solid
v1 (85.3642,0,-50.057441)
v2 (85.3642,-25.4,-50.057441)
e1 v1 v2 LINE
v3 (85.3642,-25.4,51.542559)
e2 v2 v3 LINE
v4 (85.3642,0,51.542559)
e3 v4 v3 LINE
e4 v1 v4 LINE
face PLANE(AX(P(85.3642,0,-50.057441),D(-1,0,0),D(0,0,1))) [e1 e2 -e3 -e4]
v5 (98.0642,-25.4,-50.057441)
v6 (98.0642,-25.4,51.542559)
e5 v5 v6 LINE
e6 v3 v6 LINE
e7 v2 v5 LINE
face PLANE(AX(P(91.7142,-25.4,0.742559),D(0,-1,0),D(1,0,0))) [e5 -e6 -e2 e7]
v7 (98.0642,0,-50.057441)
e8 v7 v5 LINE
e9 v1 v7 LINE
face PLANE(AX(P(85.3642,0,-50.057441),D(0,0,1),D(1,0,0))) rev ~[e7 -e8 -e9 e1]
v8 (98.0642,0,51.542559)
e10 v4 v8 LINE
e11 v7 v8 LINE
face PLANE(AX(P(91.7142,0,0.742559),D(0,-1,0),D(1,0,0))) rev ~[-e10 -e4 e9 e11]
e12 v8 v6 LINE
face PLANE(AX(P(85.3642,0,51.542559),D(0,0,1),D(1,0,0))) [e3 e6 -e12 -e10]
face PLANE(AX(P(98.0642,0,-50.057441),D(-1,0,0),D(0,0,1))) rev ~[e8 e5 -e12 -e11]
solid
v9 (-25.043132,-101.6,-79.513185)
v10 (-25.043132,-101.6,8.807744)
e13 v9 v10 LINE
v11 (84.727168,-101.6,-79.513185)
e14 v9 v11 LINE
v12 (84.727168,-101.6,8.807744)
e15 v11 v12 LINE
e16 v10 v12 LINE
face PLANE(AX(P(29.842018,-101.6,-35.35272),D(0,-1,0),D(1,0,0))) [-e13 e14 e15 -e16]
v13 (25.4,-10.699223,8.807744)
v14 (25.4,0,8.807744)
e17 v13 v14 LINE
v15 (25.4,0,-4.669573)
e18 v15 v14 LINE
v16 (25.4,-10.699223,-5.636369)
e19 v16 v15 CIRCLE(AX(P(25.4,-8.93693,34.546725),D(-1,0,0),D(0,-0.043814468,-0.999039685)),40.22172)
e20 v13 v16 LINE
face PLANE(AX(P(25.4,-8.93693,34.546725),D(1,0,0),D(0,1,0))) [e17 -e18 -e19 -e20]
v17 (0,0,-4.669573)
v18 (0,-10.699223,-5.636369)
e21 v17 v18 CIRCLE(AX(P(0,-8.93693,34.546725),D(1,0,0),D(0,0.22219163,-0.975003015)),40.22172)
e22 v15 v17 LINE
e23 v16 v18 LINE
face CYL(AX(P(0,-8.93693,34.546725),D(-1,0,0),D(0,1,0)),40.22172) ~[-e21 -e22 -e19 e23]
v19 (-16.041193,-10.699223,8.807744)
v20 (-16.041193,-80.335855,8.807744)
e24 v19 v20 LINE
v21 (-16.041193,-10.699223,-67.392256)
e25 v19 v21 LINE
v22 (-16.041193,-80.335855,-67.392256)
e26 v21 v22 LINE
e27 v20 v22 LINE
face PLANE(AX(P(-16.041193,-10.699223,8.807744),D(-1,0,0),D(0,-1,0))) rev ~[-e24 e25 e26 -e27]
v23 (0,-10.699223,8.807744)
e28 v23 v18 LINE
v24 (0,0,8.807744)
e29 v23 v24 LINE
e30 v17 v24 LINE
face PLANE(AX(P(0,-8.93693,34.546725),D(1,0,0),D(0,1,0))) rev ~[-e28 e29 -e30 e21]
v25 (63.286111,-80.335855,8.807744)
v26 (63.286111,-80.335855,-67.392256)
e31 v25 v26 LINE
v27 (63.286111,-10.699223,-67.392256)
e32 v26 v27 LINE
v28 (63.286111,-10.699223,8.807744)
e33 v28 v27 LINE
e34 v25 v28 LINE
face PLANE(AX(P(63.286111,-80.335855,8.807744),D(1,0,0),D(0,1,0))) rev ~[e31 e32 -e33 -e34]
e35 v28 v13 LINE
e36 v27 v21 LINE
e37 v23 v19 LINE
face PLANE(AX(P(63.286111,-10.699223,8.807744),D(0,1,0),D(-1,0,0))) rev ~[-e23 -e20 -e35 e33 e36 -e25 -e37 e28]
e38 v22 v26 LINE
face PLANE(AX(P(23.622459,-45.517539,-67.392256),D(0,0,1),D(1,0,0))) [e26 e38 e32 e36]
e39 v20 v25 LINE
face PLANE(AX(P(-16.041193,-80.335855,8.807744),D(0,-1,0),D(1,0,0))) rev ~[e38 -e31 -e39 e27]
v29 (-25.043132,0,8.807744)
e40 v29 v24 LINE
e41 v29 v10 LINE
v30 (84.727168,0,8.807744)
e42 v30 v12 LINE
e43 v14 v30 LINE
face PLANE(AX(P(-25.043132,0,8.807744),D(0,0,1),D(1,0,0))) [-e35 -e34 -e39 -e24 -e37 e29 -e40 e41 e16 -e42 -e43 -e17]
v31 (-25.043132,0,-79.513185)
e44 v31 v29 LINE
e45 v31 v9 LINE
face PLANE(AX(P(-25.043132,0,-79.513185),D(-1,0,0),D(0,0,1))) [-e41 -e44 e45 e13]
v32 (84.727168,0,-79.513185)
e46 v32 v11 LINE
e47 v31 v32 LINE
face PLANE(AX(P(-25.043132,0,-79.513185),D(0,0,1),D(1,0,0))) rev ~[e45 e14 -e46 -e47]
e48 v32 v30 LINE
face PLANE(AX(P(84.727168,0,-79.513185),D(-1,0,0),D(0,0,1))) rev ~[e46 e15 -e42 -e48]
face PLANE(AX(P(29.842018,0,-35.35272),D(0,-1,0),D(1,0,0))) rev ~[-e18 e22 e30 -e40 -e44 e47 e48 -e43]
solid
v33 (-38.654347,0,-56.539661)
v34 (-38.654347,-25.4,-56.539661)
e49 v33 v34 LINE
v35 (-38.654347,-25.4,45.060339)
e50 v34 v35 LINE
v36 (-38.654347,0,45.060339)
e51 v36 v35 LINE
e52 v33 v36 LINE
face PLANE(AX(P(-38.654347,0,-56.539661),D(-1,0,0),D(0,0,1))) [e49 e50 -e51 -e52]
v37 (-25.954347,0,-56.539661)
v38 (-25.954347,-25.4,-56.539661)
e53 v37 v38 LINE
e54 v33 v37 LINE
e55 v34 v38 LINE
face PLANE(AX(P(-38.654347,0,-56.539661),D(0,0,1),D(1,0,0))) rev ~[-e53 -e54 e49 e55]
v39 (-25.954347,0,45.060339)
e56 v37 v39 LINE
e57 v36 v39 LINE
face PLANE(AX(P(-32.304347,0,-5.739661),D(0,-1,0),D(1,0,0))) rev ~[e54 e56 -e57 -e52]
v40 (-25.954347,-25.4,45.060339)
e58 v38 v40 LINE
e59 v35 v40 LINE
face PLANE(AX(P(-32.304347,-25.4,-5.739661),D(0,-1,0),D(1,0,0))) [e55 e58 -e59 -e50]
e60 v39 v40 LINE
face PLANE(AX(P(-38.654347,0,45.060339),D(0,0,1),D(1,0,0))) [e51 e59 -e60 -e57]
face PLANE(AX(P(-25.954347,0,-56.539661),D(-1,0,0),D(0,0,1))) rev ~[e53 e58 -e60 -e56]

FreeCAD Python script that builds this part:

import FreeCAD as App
import Part
import Sketcher

V = App.Vector
Q = App.Units.Quantity


def add_polygon(sketch, points):
    """Adds a closed chain of lines whose ends are joined by coincident constraints."""
    first, n = sketch.GeometryCount, len(points)
    for a, b in zip(points, points[1:] + points[:1]):
        sketch.addGeometry(Part.LineSegment(App.Vector(*a, 0), App.Vector(*b, 0)), False)
    for i in range(n):
        sketch.addConstraint(Sketcher.Constraint("Coincident", first + i, 2, first + (i + 1) % n, 1))

doc = App.newDocument("Part")
params = doc.addObject("Spreadsheet::Sheet", "Params")
for row, (alias, value) in enumerate([
    ("pad1_length", "4 in"),
    ("pocket1_length", "3 in"),
    ("pad2_length", "1 in"),
    ("sketch4_height", "4 in"),
    ("sketch4_width", "0.5 in"),
    ("pad3_length", "1 in"),
    ("sketch5_height", "4 in"),
    ("sketch5_width", "0.5 in"),
    ("pad4_length", "1 in"),
], start=1):
    params.set(f"A{row}", alias)
    params.set(f"B{row}", "=" + value)
    params.setAlias(f"B{row}", alias)

body = doc.addObject("PartDesign::Body", "Body")

# Sketch on XZ plane
sketch1 = body.newObject("Sketcher::SketchObject", "Sketch")
sketch1.AttachmentSupport = (doc.getObject("XZ_Plane"), [""])
sketch1.MapMode = "FlatFace"
add_polygon(sketch1, [(-25.043132, 8.807744), (-25.043132, -79.513185), (84.727168, -79.513185), (84.727168, 8.807744)])  # lines 0-3
sketch1.addConstraint([
    Sketcher.Constraint("Vertical", 0),
    Sketcher.Constraint("Horizontal", 1),
    Sketcher.Constraint("Vertical", 2),
    Sketcher.Constraint("Horizontal", 3),
    Sketcher.Constraint("DistanceX", 1, 1, 1, 2, 109.7703),
    Sketcher.Constraint("DistanceY", 0, 2, 0, 1, 88.320929),
    Sketcher.Constraint("DistanceX", 0, 2, -1, 1, 25.043132),
    Sketcher.Constraint("DistanceY", 0, 2, -1, 1, 79.513185),
])
pad1 = body.newObject("PartDesign::Pad", "Pad")
pad1.Profile = sketch1
pad1.setExpression("Length", "Params.pad1_length")

# Sketch on XY plane
sketch2 = body.newObject("Sketcher::SketchObject", "Sketch001")
sketch2.AttachmentSupport = (doc.getObject("XY_Plane"), [""])
sketch2.MapMode = "FlatFace"
sketch2.AttachmentOffset = App.Placement(V(0, 0, 8.807744), App.Rotation())
add_polygon(sketch2, [(63.286111, -10.699223), (-16.041193, -10.699223), (-16.041193, -80.335855), (63.286111, -80.335855)])  # lines 0-3
sketch2.addConstraint([
    Sketcher.Constraint("Horizontal", 0),
    Sketcher.Constraint("Vertical", 1),
    Sketcher.Constraint("Horizontal", 2),
    Sketcher.Constraint("Vertical", 3),
    Sketcher.Constraint("DistanceX", 0, 2, 0, 1, 79.327304),
    Sketcher.Constraint("DistanceY", 1, 2, 1, 1, 69.636633),
    Sketcher.Constraint("DistanceX", -1, 1, 2, 2, 63.286111),
    Sketcher.Constraint("DistanceY", 0, 2, -1, 1, 10.699223),
])
pocket1 = body.newObject("PartDesign::Pocket", "Pocket")
pocket1.Profile = sketch2
pocket1.setExpression("Length", "Params.pocket1_length")

# Sketch on YZ plane
sketch3 = body.newObject("Sketcher::SketchObject", "Sketch002")
sketch3.AttachmentSupport = (doc.getObject("YZ_Plane"), [""])
sketch3.MapMode = "FlatFace"
sketch3.addGeometry(Part.Circle(V(-8.93693, 34.546725, 0), V(0, 0, 1), 40.22172), False)
sketch3.addConstraint([
    Sketcher.Constraint("Diameter", 0, 80.44344),
    Sketcher.Constraint("DistanceX", 0, 3, -1, 1, 8.93693),
    Sketcher.Constraint("DistanceY", -1, 1, 0, 3, 34.546725),
])
pad2 = body.newObject("PartDesign::Pad", "Pad001")
pad2.Profile = sketch3
pad2.setExpression("Length", "Params.pad2_length")
body2 = doc.addObject("PartDesign::Body", "Body001")

# Sketch on XZ plane
sketch4 = body2.newObject("Sketcher::SketchObject", "Sketch003")
sketch4.AttachmentSupport = (doc.getObject("XZ_Plane001"), [""])
sketch4.MapMode = "FlatFace"
add_polygon(sketch4, [(-38.654347, 45.060339), (-38.654347, -56.539661), (-25.954347, -56.539661), (-25.954347, 45.060339)])  # lines 0-3
sketch4.addConstraint([
    Sketcher.Constraint("Vertical", 0),
    Sketcher.Constraint("Horizontal", 1),
    Sketcher.Constraint("Vertical", 2),
    Sketcher.Constraint("Horizontal", 3),
    Sketcher.Constraint("DistanceY", 0, 2, 0, 1, Q("4 in")),
    Sketcher.Constraint("DistanceX", 1, 1, 1, 2, Q("0.5 in")),
    Sketcher.Constraint("DistanceY", 0, 2, -1, 1, 56.539661),
    Sketcher.Constraint("DistanceX", 0, 2, -1, 1, 38.654347),
])
sketch4.setExpression("Constraints[8]", "Params.sketch4_height")
sketch4.setExpression("Constraints[9]", "Params.sketch4_width")
pad3 = body2.newObject("PartDesign::Pad", "Pad002")
pad3.Profile = sketch4
pad3.setExpression("Length", "Params.pad3_length")
body3 = doc.addObject("PartDesign::Body", "Body002")

# Sketch on XZ plane
sketch5 = body3.newObject("Sketcher::SketchObject", "Sketch004")
sketch5.AttachmentSupport = (doc.getObject("XZ_Plane002"), [""])
sketch5.MapMode = "FlatFace"
add_polygon(sketch5, [(85.3642, 51.542559), (85.3642, -50.057441), (98.0642, -50.057441), (98.0642, 51.542559)])  # lines 0-3
sketch5.addConstraint([
    Sketcher.Constraint("Vertical", 0),
    Sketcher.Constraint("Horizontal", 1),
    Sketcher.Constraint("Vertical", 2),
    Sketcher.Constraint("Horizontal", 3),
    Sketcher.Constraint("DistanceY", 0, 2, 0, 1, Q("4 in")),
    Sketcher.Constraint("DistanceX", 1, 1, 1, 2, Q("0.5 in")),
    Sketcher.Constraint("DistanceX", -1, 1, 0, 2, 85.3642),
    Sketcher.Constraint("DistanceY", 0, 2, -1, 1, 50.057441),
])
sketch5.setExpression("Constraints[8]", "Params.sketch5_height")
sketch5.setExpression("Constraints[9]", "Params.sketch5_width")
pad4 = body3.newObject("PartDesign::Pad", "Pad003")
pad4.Profile = sketch5
pad4.setExpression("Length", "Params.pad4_length")

doc.recompute()
